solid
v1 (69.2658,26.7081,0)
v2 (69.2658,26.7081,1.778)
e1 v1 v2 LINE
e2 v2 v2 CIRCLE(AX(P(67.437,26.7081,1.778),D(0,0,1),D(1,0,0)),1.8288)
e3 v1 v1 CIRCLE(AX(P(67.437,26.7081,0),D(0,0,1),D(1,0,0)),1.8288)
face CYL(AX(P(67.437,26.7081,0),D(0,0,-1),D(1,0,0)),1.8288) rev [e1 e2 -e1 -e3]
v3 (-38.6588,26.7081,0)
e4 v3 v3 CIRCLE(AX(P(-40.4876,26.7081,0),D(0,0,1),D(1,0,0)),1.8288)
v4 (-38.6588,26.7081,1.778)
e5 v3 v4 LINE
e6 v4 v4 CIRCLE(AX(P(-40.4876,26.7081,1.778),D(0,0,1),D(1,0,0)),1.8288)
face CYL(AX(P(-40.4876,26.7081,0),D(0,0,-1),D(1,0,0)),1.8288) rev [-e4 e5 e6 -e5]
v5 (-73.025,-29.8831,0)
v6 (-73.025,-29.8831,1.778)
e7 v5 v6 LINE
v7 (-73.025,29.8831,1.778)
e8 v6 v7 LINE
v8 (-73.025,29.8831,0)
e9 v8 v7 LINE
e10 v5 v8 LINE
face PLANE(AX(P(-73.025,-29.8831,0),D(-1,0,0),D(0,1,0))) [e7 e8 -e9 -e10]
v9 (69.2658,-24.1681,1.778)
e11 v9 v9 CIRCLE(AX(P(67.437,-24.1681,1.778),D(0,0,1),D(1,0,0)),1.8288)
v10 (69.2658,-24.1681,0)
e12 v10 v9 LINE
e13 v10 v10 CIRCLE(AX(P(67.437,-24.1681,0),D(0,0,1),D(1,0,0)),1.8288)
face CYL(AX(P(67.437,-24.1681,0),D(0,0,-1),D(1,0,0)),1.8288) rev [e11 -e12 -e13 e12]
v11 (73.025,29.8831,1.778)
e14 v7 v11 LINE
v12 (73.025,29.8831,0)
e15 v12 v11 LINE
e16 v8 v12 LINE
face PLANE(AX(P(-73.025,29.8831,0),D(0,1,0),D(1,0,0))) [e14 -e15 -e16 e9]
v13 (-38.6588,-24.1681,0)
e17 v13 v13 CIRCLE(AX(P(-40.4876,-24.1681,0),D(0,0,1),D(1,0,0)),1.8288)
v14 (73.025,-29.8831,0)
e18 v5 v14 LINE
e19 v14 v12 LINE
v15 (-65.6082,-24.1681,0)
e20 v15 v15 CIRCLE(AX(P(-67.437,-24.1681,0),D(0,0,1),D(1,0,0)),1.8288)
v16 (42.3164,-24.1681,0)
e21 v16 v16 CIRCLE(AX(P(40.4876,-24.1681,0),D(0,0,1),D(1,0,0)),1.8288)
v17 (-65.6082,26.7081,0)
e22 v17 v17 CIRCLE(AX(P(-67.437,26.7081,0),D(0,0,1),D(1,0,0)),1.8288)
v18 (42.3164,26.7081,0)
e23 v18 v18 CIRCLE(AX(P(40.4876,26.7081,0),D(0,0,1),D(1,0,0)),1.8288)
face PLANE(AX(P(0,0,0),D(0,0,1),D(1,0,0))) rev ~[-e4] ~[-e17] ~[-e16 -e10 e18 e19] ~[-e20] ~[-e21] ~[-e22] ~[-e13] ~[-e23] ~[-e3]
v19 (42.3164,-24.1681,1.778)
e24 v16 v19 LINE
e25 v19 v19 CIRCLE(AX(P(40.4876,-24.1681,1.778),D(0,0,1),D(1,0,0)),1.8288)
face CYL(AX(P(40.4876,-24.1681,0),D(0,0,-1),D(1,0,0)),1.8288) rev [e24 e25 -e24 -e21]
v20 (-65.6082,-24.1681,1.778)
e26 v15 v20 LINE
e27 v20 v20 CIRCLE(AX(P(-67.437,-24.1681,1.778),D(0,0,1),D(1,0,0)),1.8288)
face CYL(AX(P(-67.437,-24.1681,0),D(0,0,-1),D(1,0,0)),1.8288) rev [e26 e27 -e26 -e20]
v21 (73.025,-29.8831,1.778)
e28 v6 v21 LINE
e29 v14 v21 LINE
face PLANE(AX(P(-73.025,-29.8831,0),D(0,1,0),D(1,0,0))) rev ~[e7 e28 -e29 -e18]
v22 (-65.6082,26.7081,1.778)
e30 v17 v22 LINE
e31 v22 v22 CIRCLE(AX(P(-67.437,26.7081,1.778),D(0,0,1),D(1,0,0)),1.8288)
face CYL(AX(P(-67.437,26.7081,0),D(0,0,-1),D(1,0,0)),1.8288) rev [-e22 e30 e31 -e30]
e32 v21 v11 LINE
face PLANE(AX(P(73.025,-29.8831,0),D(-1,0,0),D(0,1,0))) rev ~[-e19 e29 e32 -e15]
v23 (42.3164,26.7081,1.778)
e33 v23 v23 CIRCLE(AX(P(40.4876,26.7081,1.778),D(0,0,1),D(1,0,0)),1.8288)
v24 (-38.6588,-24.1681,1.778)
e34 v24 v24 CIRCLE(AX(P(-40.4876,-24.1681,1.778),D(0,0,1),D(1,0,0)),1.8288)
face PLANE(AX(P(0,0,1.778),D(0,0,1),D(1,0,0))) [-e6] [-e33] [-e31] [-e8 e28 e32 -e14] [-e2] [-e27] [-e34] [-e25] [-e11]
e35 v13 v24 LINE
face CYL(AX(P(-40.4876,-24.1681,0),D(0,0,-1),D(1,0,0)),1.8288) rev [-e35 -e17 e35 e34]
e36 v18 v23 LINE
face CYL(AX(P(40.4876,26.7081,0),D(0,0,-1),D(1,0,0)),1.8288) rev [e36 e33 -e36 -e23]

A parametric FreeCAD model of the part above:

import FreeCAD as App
import Part
import Sketcher
from FreeCAD import Vector
Q = App.Units.Quantity


def add_polygon(sketch, points):
    """Adds a closed chain of lines whose ends are joined by coincident constraints."""
    first, n = sketch.GeometryCount, len(points)
    for a, b in zip(points, points[1:] + points[:1]):
        sketch.addGeometry(Part.LineSegment(App.Vector(*a, 0), App.Vector(*b, 0)), False)
    for i in range(n):
        sketch.addConstraint(Sketcher.Constraint("Coincident", first + i, 2, first + (i + 1) % n, 1))

doc = App.newDocument("Part")
params = doc.addObject("Spreadsheet::Sheet", "Params")
for row, (alias, value) in enumerate([
    ("sketch1_diameter", "0.144 in"),
    ("sketch1_width", "5.75 in"),
    ("sketch1_height", "2.353 in"),
    ("pad1_length", "0.07 in"),
], start=1):
    params.set(f"A{row}", alias)
    params.set(f"B{row}", "=" + value)
    params.setAlias(f"B{row}", alias)

body = doc.addObject("PartDesign::Body", "Body")

sketch1 = body.newObject("Sketcher::SketchObject", "Sketch")
sketch1.AttachmentSupport = (doc.getObject("XY_Plane"), [""])
sketch1.MapMode = "FlatFace"
add_polygon(sketch1, [(-73.025, 29.8831), (-73.025, -29.8831), (73.025, -29.8831), (73.025, 29.8831)])
sketch1.addGeometry(Part.Circle(Vector(-67.437, -24.1681, 0), Vector(0, 0, 1), 1.8288), False)
sketch1.addGeometry(Part.Circle(Vector(-40.4876, -24.1681, 0), Vector(0, 0, 1), 1.8288), False)
sketch1.addGeometry(Part.Circle(Vector(40.4876, -24.1681, 0), Vector(0, 0, 1), 1.8288), False)
sketch1.addGeometry(Part.Circle(Vector(67.437, -24.1681, 0), Vector(0, 0, 1), 1.8288), False)
sketch1.addGeometry(Part.Circle(Vector(-67.437, 26.7081, 0), Vector(0, 0, 1), 1.8288), False)
sketch1.addGeometry(Part.Circle(Vector(-40.4876, 26.7081, 0), Vector(0, 0, 1), 1.8288), False)
sketch1.addGeometry(Part.Circle(Vector(40.4876, 26.7081, 0), Vector(0, 0, 1), 1.8288), False)
sketch1.addGeometry(Part.Circle(Vector(67.437, 26.7081, 0), Vector(0, 0, 1), 1.8288), False)
sketch1.addConstraint([
    Sketcher.Constraint("Vertical", 0),
    Sketcher.Constraint("Horizontal", 1),
    Sketcher.Constraint("Vertical", 2),
    Sketcher.Constraint("Horizontal", 3),
    Sketcher.Constraint("Equal", 4, 5),
    Sketcher.Constraint("Equal", 5, 6),
    Sketcher.Constraint("Equal", 6, 7),
    Sketcher.Constraint("Equal", 7, 8),
    Sketcher.Constraint("Equal", 8, 9),
    Sketcher.Constraint("Equal", 9, 10),
    Sketcher.Constraint("Equal", 10, 11),
    Sketcher.Constraint("Symmetric", 0, 2, 2, 2, -1, 1),
    Sketcher.Constraint("Symmetric", 5, 3, 6, 3, -2),
    Sketcher.Constraint("Symmetric", 4, 3, 7, 3, -2),
    Sketcher.Constraint("Symmetric", 9, 3, 10, 3, -2),
    Sketcher.Constraint("Symmetric", 8, 3, 11, 3, -2),
    Sketcher.Constraint("Horizontal", 4, 3, 5, 3),
    Sketcher.Constraint("Horizontal", 8, 3, 9, 3),
    Sketcher.Constraint("Vertical", 4, 3, 8, 3),
    Sketcher.Constraint("Vertical", 5, 3, 9, 3),
    Sketcher.Constraint("Diameter", 4, Q("0.144 in")),
    Sketcher.Constraint("DistanceX", 1, 1, 1, 2, Q("5.75 in")),
    Sketcher.Constraint("DistanceY", 0, 2, 0, 1, Q("2.353 in")),
    Sketcher.Constraint("DistanceX", 4, 3, 7, 3, Q("5.31 in")),
    Sketcher.Constraint("DistanceX", 5, 3, -1, 1, Q("1.594 in")),
    Sketcher.Constraint("DistanceY", 4, 3, 8, 3, Q("2.003 in")),
    Sketcher.Constraint("DistanceY", 0, 2, 4, 3, Q("0.225 in")),
])
sketch1.setExpression("Constraints[24]", "Params.sketch1_diameter")
sketch1.setExpression("Constraints[25]", "Params.sketch1_width")
sketch1.setExpression("Constraints[26]", "Params.sketch1_height")
pad1 = body.newObject("PartDesign::Pad", "Pad")
pad1.Profile = sketch1
pad1.setExpression("Length", "Params.pad1_length")

doc.recompute()
